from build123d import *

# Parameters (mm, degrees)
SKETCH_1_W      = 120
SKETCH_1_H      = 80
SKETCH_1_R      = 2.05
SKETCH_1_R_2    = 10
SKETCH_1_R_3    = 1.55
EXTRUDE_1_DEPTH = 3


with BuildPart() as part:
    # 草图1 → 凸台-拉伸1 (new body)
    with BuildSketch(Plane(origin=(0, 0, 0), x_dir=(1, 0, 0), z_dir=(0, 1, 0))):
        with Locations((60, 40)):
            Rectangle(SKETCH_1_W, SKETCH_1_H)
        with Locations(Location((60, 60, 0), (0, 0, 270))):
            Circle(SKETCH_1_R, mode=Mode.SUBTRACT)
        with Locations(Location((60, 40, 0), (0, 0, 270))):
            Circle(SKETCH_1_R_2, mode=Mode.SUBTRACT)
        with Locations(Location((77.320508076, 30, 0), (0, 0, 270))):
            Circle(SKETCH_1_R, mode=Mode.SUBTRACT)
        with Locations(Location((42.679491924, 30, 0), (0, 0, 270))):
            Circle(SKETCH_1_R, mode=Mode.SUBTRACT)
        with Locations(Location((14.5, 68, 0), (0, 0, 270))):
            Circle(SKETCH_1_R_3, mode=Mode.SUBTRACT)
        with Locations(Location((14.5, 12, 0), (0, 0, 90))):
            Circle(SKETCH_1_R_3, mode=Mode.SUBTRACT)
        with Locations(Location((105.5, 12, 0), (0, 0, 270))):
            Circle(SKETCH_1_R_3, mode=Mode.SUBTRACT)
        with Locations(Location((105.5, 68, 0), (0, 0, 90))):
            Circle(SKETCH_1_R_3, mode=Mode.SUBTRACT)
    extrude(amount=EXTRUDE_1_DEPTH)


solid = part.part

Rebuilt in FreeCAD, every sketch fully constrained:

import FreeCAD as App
import Part
import Sketcher

V = App.Vector

doc = App.newDocument("Part")
body = doc.addObject("PartDesign::Body", "Body")

# Sketch on XZ plane
sketch1 = body.newObject("Sketcher::SketchObject", "Sketch")
sketch1.AttachmentSupport = (doc.getObject("XZ_Plane"), [""])
sketch1.MapMode = "FlatFace"
sketch1.addGeometry([
    Part.LineSegment(V(0, -80, 0), V(0, 0, 0)),  # 0
    Part.LineSegment(V(0, 0, 0), V(120, 0, 0)),  # 1
    Part.LineSegment(V(120, 0, 0), V(120, -80, 0)),  # 2
    Part.LineSegment(V(120, -80, 0), V(0, -80, 0)),  # 3
    Part.Circle(V(14.5, -12, 0), V(0, 0, 1), 1.6),  # 4
    Part.Circle(V(42.7, -30, 0), V(0, 0, 1), 2),  # 5
    Part.Circle(V(105.5, -12, 0), V(0, 0, 1), 1.6),  # 6
    Part.Circle(V(77.3, -30, 0), V(0, 0, 1), 2),  # 7
    Part.Circle(V(14.5, -68, 0), V(0, 0, 1), 1.6),  # 8
    Part.Circle(V(60, -40, 0), V(0, 0, 1), 10),  # 9
    Part.Circle(V(60, -60, 0), V(0, 0, 1), 2),  # 10
    Part.Circle(V(105.5, -68, 0), V(0, 0, 1), 1.6),  # 11
], False)
sketch1.addConstraint([
    Sketcher.Constraint("Coincident", 0, 2, 1, 1),
    Sketcher.Constraint("Coincident", 1, 2, 2, 1),
    Sketcher.Constraint("Coincident", 2, 2, 3, 1),
    Sketcher.Constraint("Coincident", 3, 2, 0, 1),
    Sketcher.Constraint("Vertical", 0),
    Sketcher.Constraint("Horizontal", 1),
    Sketcher.Constraint("Vertical", 2),
    Sketcher.Constraint("Horizontal", 3),
    Sketcher.Constraint("Coincident", 0, 2, -1, 1),
    Sketcher.Constraint("Equal", 4, 6),
    Sketcher.Constraint("Equal", 5, 7),
    Sketcher.Constraint("Equal", 6, 8),
    Sketcher.Constraint("Equal", 7, 10),
    Sketcher.Constraint("Equal", 8, 11),
    Sketcher.Constraint("Horizontal", 4, 3, 6, 3),
    Sketcher.Constraint("Horizontal", 5, 3, 7, 3),
    Sketcher.Constraint("Horizontal", 8, 3, 11, 3),
    Sketcher.Constraint("Vertical", 4, 3, 8, 3),
    Sketcher.Constraint("Vertical", 9, 3, 10, 3),
    Sketcher.Constraint("Vertical", 6, 3, 11, 3),
    Sketcher.Constraint("Diameter", 9, 20.0),
    Sketcher.Constraint("Diameter", 4, 3.1),
    Sketcher.Constraint("Diameter", 5, 4.1),
    Sketcher.Constraint("DistanceX", 1, 1, 1, 2, 120.0),
    Sketcher.Constraint("DistanceY", 0, 1, 0, 2, 80.0),
    Sketcher.Constraint("DistanceY", 4, 3, -1, 1, 12.0),
    Sketcher.Constraint("DistanceY", 5, 3, -1, 1, 30.0),
    Sketcher.Constraint("DistanceY", 8, 3, -1, 1, 68.0),
    Sketcher.Constraint("DistanceX", -1, 1, 9, 3, 60.0),
    Sketcher.Constraint("DistanceY", 9, 3, -1, 1, 40.0),
    Sketcher.Constraint("DistanceY", 10, 3, -1, 1, 60.0),
    Sketcher.Constraint("DistanceX", 4, 3, 6, 3, 91.0),
    Sketcher.Constraint("DistanceX", -1, 1, 4, 3, 14.5),
    Sketcher.Constraint("DistanceX", -1, 1, 5, 3, 42.679492),
    Sketcher.Constraint("DistanceX", -1, 1, 7, 3, 77.320508),
])
pad1 = body.newObject("PartDesign::Pad", "Pad")
pad1.Profile = sketch1
pad1.Length = 3
pad1.Reversed = True

doc.recompute()
